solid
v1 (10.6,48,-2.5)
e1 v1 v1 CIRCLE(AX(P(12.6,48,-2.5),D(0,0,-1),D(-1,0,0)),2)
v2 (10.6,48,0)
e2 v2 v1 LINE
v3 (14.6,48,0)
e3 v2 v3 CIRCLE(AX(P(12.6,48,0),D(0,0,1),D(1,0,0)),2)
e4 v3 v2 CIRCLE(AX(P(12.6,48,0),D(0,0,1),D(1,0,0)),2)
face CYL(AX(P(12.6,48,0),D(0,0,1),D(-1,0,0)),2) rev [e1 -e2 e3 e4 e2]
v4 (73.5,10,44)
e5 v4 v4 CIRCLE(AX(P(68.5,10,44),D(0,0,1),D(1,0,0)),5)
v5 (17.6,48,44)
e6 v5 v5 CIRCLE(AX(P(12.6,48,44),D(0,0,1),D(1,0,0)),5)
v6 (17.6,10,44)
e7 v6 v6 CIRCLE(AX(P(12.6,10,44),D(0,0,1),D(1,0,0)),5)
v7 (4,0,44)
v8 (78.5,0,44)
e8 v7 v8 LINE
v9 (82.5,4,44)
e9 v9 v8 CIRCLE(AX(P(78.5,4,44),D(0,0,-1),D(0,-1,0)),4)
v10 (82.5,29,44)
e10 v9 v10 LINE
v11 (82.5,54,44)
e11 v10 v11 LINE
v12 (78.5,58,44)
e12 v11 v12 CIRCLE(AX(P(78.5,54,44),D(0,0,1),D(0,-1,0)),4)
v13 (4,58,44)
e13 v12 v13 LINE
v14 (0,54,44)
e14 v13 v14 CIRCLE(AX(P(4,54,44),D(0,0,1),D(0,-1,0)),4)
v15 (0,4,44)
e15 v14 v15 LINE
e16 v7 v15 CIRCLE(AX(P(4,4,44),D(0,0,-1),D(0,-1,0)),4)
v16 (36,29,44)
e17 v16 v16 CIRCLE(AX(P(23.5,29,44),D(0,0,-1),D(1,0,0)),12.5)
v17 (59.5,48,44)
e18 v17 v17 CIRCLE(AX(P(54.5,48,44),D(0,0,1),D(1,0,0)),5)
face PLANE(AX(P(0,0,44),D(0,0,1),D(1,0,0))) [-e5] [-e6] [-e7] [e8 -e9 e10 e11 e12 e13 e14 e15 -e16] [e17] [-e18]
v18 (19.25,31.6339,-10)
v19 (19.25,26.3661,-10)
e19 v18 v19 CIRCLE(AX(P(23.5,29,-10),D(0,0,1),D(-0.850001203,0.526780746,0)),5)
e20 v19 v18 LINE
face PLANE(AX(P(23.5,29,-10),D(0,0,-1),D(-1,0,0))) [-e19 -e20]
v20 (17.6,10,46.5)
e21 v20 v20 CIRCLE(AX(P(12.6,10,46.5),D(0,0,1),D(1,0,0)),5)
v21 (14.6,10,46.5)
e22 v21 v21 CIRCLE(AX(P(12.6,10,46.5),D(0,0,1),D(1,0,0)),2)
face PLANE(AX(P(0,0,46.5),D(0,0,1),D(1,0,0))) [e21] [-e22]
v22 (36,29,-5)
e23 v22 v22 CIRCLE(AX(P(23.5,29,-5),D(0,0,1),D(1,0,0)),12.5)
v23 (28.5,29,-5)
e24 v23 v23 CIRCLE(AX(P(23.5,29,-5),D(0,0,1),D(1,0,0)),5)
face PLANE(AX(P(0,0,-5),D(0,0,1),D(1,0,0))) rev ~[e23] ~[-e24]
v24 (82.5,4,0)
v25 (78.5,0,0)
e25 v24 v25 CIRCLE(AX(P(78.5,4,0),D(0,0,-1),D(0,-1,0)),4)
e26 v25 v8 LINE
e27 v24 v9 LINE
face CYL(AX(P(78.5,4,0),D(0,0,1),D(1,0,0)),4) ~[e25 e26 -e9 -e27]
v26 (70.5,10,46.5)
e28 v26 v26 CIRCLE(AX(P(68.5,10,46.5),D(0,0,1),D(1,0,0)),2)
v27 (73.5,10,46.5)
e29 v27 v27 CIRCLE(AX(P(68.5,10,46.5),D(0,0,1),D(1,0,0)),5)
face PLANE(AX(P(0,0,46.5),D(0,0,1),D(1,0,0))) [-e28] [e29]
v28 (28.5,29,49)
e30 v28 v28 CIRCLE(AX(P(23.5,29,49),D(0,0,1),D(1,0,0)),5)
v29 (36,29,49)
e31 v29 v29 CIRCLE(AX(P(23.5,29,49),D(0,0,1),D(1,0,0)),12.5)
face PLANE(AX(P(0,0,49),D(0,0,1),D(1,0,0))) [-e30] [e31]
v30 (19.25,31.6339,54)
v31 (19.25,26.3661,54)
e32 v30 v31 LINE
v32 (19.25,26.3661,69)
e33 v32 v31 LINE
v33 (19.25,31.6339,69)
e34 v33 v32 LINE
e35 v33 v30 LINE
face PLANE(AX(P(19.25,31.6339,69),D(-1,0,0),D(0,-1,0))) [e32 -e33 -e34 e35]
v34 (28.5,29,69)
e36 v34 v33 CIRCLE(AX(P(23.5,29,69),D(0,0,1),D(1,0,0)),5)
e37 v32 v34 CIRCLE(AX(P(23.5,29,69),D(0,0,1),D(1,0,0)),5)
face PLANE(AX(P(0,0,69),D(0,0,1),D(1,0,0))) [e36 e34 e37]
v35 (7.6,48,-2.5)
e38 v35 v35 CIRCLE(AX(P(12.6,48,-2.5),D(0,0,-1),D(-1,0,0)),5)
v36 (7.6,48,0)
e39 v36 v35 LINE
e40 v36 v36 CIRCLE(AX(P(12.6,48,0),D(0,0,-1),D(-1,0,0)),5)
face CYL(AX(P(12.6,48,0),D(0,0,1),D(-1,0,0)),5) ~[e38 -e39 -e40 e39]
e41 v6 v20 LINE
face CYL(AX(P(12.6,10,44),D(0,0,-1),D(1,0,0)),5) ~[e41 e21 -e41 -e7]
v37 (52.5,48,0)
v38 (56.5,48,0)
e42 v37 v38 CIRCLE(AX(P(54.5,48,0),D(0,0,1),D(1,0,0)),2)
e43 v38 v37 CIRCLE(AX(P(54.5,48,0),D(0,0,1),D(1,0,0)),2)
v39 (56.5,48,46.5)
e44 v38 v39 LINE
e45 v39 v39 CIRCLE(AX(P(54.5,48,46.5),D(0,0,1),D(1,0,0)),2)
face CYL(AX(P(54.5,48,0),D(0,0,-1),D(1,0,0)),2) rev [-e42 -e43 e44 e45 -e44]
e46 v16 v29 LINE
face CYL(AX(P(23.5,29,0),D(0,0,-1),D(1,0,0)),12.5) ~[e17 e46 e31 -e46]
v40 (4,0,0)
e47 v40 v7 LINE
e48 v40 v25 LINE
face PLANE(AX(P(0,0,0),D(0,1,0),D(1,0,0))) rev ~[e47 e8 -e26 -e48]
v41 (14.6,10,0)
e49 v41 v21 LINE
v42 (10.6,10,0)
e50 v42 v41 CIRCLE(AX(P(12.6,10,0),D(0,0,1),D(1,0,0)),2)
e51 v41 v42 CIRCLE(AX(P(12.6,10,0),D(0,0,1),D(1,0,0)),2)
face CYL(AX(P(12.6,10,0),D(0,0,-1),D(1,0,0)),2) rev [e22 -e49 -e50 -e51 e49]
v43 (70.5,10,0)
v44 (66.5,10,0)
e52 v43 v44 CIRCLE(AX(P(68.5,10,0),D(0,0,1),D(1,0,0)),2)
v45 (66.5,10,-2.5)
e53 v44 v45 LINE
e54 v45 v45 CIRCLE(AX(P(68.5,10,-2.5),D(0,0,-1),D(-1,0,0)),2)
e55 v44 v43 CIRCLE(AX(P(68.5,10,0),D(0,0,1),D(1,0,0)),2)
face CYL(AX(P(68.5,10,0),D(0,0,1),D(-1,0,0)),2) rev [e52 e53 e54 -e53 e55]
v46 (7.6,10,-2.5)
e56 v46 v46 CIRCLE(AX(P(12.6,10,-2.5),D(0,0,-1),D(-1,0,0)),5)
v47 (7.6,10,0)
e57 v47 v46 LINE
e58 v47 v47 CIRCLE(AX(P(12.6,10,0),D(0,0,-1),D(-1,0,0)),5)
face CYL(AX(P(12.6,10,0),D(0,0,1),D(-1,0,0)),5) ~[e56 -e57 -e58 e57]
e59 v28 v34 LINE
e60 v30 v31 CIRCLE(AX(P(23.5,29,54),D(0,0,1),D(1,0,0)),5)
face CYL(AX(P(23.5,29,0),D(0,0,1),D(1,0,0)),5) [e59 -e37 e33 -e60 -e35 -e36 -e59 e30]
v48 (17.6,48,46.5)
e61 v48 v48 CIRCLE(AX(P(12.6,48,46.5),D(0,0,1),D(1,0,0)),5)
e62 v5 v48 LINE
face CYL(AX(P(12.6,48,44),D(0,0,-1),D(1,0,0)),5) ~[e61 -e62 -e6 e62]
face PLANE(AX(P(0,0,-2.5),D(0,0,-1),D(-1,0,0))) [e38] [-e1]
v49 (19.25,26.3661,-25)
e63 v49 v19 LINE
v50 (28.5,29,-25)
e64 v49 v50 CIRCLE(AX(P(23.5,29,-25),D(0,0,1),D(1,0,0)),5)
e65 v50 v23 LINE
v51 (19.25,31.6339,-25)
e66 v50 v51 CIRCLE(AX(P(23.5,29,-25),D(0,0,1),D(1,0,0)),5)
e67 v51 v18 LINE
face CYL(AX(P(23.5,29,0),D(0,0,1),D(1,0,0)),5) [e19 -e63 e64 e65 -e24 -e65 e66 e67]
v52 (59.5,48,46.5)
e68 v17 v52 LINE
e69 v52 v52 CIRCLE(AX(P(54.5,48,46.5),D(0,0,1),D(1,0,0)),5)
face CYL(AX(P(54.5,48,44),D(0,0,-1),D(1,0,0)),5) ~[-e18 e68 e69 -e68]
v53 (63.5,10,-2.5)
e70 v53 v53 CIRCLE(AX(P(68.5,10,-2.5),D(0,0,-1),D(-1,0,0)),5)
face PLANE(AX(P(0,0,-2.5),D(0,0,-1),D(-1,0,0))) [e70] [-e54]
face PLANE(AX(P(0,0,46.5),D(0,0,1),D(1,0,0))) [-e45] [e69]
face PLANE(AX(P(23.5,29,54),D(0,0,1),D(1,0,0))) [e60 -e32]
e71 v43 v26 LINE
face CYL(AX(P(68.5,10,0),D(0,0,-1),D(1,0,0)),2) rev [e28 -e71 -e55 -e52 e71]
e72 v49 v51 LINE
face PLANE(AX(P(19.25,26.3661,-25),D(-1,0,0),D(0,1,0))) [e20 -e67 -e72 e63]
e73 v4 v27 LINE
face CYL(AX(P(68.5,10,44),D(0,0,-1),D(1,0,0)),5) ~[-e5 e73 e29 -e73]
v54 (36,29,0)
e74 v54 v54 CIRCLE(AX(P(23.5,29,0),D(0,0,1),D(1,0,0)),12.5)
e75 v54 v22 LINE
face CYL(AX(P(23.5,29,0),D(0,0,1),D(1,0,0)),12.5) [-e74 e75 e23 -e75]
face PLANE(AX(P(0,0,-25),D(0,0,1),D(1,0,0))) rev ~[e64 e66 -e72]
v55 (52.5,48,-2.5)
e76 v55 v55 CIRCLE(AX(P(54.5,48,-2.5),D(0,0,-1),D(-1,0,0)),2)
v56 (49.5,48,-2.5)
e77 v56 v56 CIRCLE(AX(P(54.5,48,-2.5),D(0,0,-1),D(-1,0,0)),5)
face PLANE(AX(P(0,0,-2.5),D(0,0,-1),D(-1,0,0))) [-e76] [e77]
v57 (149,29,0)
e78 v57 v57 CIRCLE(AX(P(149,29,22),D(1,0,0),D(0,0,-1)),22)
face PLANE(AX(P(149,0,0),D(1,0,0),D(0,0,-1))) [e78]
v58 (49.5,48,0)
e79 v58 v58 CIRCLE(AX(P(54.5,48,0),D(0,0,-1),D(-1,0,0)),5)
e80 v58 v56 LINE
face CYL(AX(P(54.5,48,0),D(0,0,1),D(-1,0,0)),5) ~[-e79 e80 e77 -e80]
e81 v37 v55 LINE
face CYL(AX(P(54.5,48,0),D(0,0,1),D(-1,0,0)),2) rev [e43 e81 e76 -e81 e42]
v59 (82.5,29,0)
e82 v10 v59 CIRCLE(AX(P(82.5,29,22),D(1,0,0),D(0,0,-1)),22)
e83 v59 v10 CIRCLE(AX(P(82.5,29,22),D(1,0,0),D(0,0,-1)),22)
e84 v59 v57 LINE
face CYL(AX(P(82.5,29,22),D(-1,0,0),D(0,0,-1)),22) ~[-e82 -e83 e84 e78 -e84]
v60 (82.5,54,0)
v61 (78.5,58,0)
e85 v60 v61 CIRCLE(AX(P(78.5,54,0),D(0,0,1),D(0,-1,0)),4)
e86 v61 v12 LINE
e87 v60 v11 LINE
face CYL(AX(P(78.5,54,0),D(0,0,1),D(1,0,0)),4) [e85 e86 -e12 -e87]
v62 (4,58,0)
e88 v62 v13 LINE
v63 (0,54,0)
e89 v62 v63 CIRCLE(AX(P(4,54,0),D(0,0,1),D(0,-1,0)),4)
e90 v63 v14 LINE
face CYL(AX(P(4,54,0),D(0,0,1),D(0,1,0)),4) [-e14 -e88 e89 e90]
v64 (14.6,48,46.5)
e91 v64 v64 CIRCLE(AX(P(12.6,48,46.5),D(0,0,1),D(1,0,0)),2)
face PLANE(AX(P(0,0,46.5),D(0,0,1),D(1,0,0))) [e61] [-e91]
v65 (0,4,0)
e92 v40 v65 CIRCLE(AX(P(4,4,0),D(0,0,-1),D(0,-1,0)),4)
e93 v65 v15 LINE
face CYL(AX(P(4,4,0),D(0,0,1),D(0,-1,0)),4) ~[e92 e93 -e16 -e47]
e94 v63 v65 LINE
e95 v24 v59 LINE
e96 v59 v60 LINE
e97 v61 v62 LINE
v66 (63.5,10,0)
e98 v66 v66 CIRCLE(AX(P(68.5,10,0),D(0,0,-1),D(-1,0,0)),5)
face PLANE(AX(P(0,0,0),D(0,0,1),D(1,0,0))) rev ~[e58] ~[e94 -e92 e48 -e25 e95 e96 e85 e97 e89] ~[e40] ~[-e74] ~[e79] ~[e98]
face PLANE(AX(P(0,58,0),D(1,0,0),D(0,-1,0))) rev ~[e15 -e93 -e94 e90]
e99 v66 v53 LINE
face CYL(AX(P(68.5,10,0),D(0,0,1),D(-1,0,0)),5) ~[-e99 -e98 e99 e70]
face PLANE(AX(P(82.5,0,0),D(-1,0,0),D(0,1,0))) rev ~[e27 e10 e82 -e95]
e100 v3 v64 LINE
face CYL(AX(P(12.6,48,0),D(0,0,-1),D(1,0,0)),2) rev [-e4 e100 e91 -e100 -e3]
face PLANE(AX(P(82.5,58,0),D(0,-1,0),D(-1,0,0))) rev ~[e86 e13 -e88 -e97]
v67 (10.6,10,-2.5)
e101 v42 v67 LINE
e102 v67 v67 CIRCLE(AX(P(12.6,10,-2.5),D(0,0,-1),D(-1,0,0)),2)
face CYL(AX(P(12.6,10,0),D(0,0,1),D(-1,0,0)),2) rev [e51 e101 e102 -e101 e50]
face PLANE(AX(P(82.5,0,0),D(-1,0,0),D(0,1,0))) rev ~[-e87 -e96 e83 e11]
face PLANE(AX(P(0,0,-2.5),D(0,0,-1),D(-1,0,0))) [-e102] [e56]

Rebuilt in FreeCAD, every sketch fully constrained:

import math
import FreeCAD as App
import Part
import Sketcher

V = App.Vector
Q = App.Units.Quantity


def edges_at(feature, points):
    """Names of the edges that pass closest to the given points."""
    edges = feature.Shape.Edges
    near = lambda p: min(range(len(edges)), key=lambda i: edges[i].distToShape(Part.Vertex(*p))[0])
    return sorted({f"Edge{near(p) + 1}" for p in points})


def add_polygon(sketch, points):
    """Adds a closed chain of lines whose ends are joined by coincident constraints."""
    first, n = sketch.GeometryCount, len(points)
    for a, b in zip(points, points[1:] + points[:1]):
        sketch.addGeometry(Part.LineSegment(App.Vector(*a, 0), App.Vector(*b, 0)), False)
    for i in range(n):
        sketch.addConstraint(Sketcher.Constraint("Coincident", first + i, 2, first + (i + 1) % n, 1))

doc = App.newDocument("Part")
body = doc.addObject("PartDesign::Body", "Body")

# Sketch on XY plane
sketch1 = body.newObject("Sketcher::SketchObject", "Sketch")
sketch1.AttachmentSupport = (doc.getObject("XY_Plane"), [""])
sketch1.MapMode = "FlatFace"
add_polygon(sketch1, [(0, 58), (0, 0), (82.5, 0), (82.5, 58)])  # lines 0-3
sketch1.addGeometry(Part.Circle(V(12.6, 10, 0), V(0, 0, 1), 2), False)  # 4
sketch1.addGeometry(Part.Circle(V(68.5, 10, 0), V(0, 0, 1), 2), False)  # 5
sketch1.addGeometry(Part.Circle(V(12.6, 48, 0), V(0, 0, 1), 2), False)  # 6
sketch1.addGeometry(Part.Circle(V(54.5, 48, 0), V(0, 0, 1), 2), False)  # 7
sketch1.addConstraint([
    Sketcher.Constraint("Vertical", 0),
    Sketcher.Constraint("Horizontal", 1),
    Sketcher.Constraint("Vertical", 2),
    Sketcher.Constraint("Horizontal", 3),
    Sketcher.Constraint("Coincident", 0, 2, -1, 1),
    Sketcher.Constraint("Equal", 4, 5),
    Sketcher.Constraint("Equal", 5, 6),
    Sketcher.Constraint("Equal", 6, 7),
    Sketcher.Constraint("Horizontal", 4, 3, 5, 3),
    Sketcher.Constraint("Horizontal", 6, 3, 7, 3),
    Sketcher.Constraint("Vertical", 4, 3, 6, 3),
    Sketcher.Constraint("Diameter", 4, Q("4 mm")),
    Sketcher.Constraint("DistanceY", 0, 2, 0, 1, Q("58 mm")),
    Sketcher.Constraint("DistanceX", 1, 1, 1, 2, Q("82.5 mm")),
    Sketcher.Constraint("DistanceY", -1, 1, 4, 3, Q("10 mm")),
    Sketcher.Constraint("DistanceY", 4, 3, 6, 3, Q("38 mm")),
    Sketcher.Constraint("DistanceX", -1, 1, 4, 3, Q("12.6 mm")),
    Sketcher.Constraint("DistanceX", 4, 3, 5, 3, Q("55.9 mm")),
    Sketcher.Constraint("DistanceX", 6, 3, 7, 3, Q("41.9 mm")),
])
pad1 = body.newObject("PartDesign::Pad", "Pad")
pad1.Profile = sketch1
pad1.Length = 44

# Sketch on XY plane
sketch2 = body.newObject("Sketcher::SketchObject", "Sketch001")
sketch2.AttachmentSupport = (doc.getObject("XY_Plane"), [""])
sketch2.MapMode = "FlatFace"
sketch2.addGeometry([
    Part.Circle(V(24, 29, 0), V(0, 0, 1), 12),
    Part.Circle(V(24, 29, 0), V(0, 0, 1), 5),
], False)
sketch2.addConstraint([
    Sketcher.Constraint("Coincident", 1, 3, 0, 3),
    Sketcher.Constraint("Diameter", 0, Q("25 mm")),
    Sketcher.Constraint("Diameter", 1, Q("10 mm")),
    Sketcher.Constraint("DistanceY", -1, 1, 0, 3, Q("29 mm")),
    Sketcher.Constraint("DistanceX", -1, 1, 0, 3, Q("23.5 mm")),
])
pad2 = body.newObject("PartDesign::Pad", "Pad001")
pad2.Profile = sketch2
pad2.Type = "TwoLengths"
pad2.Length = 49
pad2.Length2 = 5

# Sketch on XY plane
sketch3 = body.newObject("Sketcher::SketchObject", "Sketch002")
sketch3.AttachmentSupport = (doc.getObject("XY_Plane"), [""])
sketch3.MapMode = "FlatFace"
sketch3.addGeometry(Part.Circle(V(24, 29, 0), V(0, 0, 1), 5), False)
sketch3.addConstraint([
    Sketcher.Constraint("Diameter", 0, Q("10 mm")),
    Sketcher.Constraint("DistanceY", -1, 1, 0, 3, Q("29 mm")),
    Sketcher.Constraint("DistanceX", -1, 1, 0, 3, Q("23.5 mm")),
])
pad3 = body.newObject("PartDesign::Pad", "Pad002")
pad3.Profile = sketch3
pad3.Type = "TwoLengths"
pad3.Length = 25
pad3.Length2 = 69
pad3.Reversed = True

# Sketch on XY plane
sketch4 = body.newObject("Sketcher::SketchObject", "Sketch003")
sketch4.AttachmentSupport = (doc.getObject("XY_Plane"), [""])
sketch4.MapMode = "FlatFace"
sketch4.AttachmentOffset = App.Placement(V(0, 0, 44), App.Rotation())
sketch4.addGeometry([
    Part.Circle(V(12.6, 48, 0), V(0, 0, 1), 5),  # 0
    Part.Circle(V(12.6, 48, 0), V(0, 0, 1), 2),  # 1
    Part.Circle(V(54.5, 48, 0), V(0, 0, 1), 5),  # 2
    Part.Circle(V(54.5, 48, 0), V(0, 0, 1), 2),  # 3
    Part.Circle(V(68.5, 10, 0), V(0, 0, 1), 5),  # 4
    Part.Circle(V(68.5, 10, 0), V(0, 0, 1), 2),  # 5
    Part.Circle(V(12.6, 10, 0), V(0, 0, 1), 5),  # 6
    Part.Circle(V(12.6, 10, 0), V(0, 0, 1), 2),  # 7
], False)
sketch4.addConstraint([
    Sketcher.Constraint("Coincident", 1, 3, 0, 3),
    Sketcher.Constraint("Coincident", 3, 3, 2, 3),
    Sketcher.Constraint("Coincident", 5, 3, 4, 3),
    Sketcher.Constraint("Coincident", 7, 3, 6, 3),
    Sketcher.Constraint("Equal", 0, 2),
    Sketcher.Constraint("Equal", 1, 3),
    Sketcher.Constraint("Equal", 2, 4),
    Sketcher.Constraint("Equal", 3, 5),
    Sketcher.Constraint("Equal", 4, 6),
    Sketcher.Constraint("Equal", 5, 7),
    Sketcher.Constraint("Horizontal", 1, 3, 2, 3),
    Sketcher.Constraint("Horizontal", 5, 3, 6, 3),
    Sketcher.Constraint("Vertical", 1, 3, 6, 3),
    Sketcher.Constraint("Diameter", 0, Q("10 mm")),
    Sketcher.Constraint("Diameter", 1, Q("4 mm")),
    Sketcher.Constraint("DistanceY", -1, 1, 4, 3, Q("10 mm")),
    Sketcher.Constraint("DistanceY", -1, 1, 0, 3, Q("48 mm")),
    Sketcher.Constraint("DistanceX", 2, 3, 4, 3, Q("14 mm")),
    Sketcher.Constraint("DistanceX", -1, 1, 0, 3, Q("12.6 mm")),
    Sketcher.Constraint("DistanceX", -1, 1, 2, 3, Q("54.5 mm")),
])
pad4 = body.newObject("PartDesign::Pad", "Pad003")
pad4.Profile = sketch4
pad4.Length = 2.5

# Sketch on XY plane
sketch5 = body.newObject("Sketcher::SketchObject", "Sketch004")
sketch5.AttachmentSupport = (doc.getObject("XY_Plane"), [""])
sketch5.MapMode = "FlatFace"
sketch5.addGeometry([
    Part.Circle(V(12.6, 48, 0), V(0, 0, 1), 5),  # 0
    Part.Circle(V(12.6, 48, 0), V(0, 0, 1), 2),  # 1
    Part.Circle(V(12.6, 10, 0), V(0, 0, 1), 5),  # 2
    Part.Circle(V(12.6, 10, 0), V(0, 0, 1), 2),  # 3
    Part.Circle(V(54.5, 48, 0), V(0, 0, 1), 5),  # 4
    Part.Circle(V(54.5, 48, 0), V(0, 0, 1), 2),  # 5
    Part.Circle(V(68.5, 10, 0), V(0, 0, 1), 5),  # 6
    Part.Circle(V(68.5, 10, 0), V(0, 0, 1), 2),  # 7
], False)
sketch5.addConstraint([
    Sketcher.Constraint("Coincident", 1, 3, 0, 3),
    Sketcher.Constraint("Coincident", 3, 3, 2, 3),
    Sketcher.Constraint("Coincident", 5, 3, 4, 3),
    Sketcher.Constraint("Coincident", 7, 3, 6, 3),
    Sketcher.Constraint("Equal", 0, 2),
    Sketcher.Constraint("Equal", 1, 3),
    Sketcher.Constraint("Equal", 2, 4),
    Sketcher.Constraint("Equal", 3, 5),
    Sketcher.Constraint("Equal", 4, 6),
    Sketcher.Constraint("Equal", 5, 7),
    Sketcher.Constraint("Horizontal", 1, 3, 4, 3),
    Sketcher.Constraint("Horizontal", 3, 3, 6, 3),
    Sketcher.Constraint("Vertical", 1, 3, 2, 3),
    Sketcher.Constraint("Diameter", 0, Q("10 mm")),
    Sketcher.Constraint("Diameter", 1, Q("4 mm")),
    Sketcher.Constraint("DistanceY", -1, 1, 0, 3, Q("48 mm")),
    Sketcher.Constraint("DistanceY", -1, 1, 2, 3, Q("10 mm")),
    Sketcher.Constraint("DistanceX", 4, 3, 6, 3, Q("14 mm")),
    Sketcher.Constraint("DistanceX", -1, 1, 0, 3, Q("12.6 mm")),
    Sketcher.Constraint("DistanceX", -1, 1, 4, 3, Q("54.5 mm")),
])
pad5 = body.newObject("PartDesign::Pad", "Pad004")
pad5.Profile = sketch5
pad5.Length = 2.5
pad5.Reversed = True

# Sketch on YZ plane
sketch6 = body.newObject("Sketcher::SketchObject", "Sketch005")
sketch6.AttachmentSupport = (doc.getObject("YZ_Plane"), [""])
sketch6.MapMode = "FlatFace"
sketch6.AttachmentOffset = App.Placement(V(0, 0, 82.5), App.Rotation())
sketch6.addGeometry(Part.Circle(V(29, 22, 0), V(0, 0, 1), 22), False)
sketch6.addConstraint([
    Sketcher.Constraint("Diameter", 0, Q("44 mm")),
    Sketcher.Constraint("DistanceX", -1, 1, 0, 3, Q("29 mm")),
    Sketcher.Constraint("DistanceY", -1, 1, 0, 3, Q("22 mm")),
])
pad6 = body.newObject("PartDesign::Pad", "Pad005")
pad6.Profile = sketch6
pad6.Length = 66.5

# Sketch on XY plane
sketch7 = body.newObject("Sketcher::SketchObject", "Sketch006")
sketch7.AttachmentSupport = (doc.getObject("XY_Plane"), [""])
sketch7.MapMode = "FlatFace"
sketch7.AttachmentOffset = App.Placement(V(0, 0, -25), App.Rotation())
sketch7.addGeometry([
    Part.ArcOfCircle(Part.Circle(V(24, 29, 0), V(0, 0, 1), 5), math.radians(148), math.radians(212)),
    Part.LineSegment(V(19, 26, 0), V(19, 32, 0)),
], False)
sketch7.addConstraint([
    Sketcher.Constraint("Coincident", 0, 1, 1, 2),
    Sketcher.Constraint("Coincident", 1, 1, 0, 2),
    Sketcher.Constraint("Vertical", 1),
    Sketcher.Constraint("Radius", 0, Q("5 mm")),
    Sketcher.Constraint("DistanceX", 0, 1, 0, 3, Q("4.25 mm")),
    Sketcher.Constraint("DistanceY", -1, 1, 0, 3, Q("29 mm")),
    Sketcher.Constraint("DistanceX", -1, 1, 0, 3, Q("23.5 mm")),
])
pocket1 = body.newObject("PartDesign::Pocket", "Pocket")
pocket1.Profile = sketch7
pocket1.Length = 15
pocket1.Reversed = True

# Sketch on XY plane
sketch8 = body.newObject("Sketcher::SketchObject", "Sketch007")
sketch8.AttachmentSupport = (doc.getObject("XY_Plane"), [""])
sketch8.MapMode = "FlatFace"
sketch8.AttachmentOffset = App.Placement(V(0, 0, 69), App.Rotation())
sketch8.addGeometry([
    Part.LineSegment(V(19, 26, 0), V(19, 32, 0)),
    Part.ArcOfCircle(Part.Circle(V(24, 29, 0), V(0, 0, 1), 5), math.radians(148), math.radians(212)),
], False)
sketch8.addConstraint([
    Sketcher.Constraint("Coincident", 0, 1, 1, 2),
    Sketcher.Constraint("Coincident", 1, 1, 0, 2),
    Sketcher.Constraint("Vertical", 0),
    Sketcher.Constraint("Radius", 1, Q("5 mm")),
    Sketcher.Constraint("DistanceX", 0, 1, 1, 3, Q("4.25 mm")),
    Sketcher.Constraint("DistanceY", -1, 1, 1, 3, Q("29 mm")),
    Sketcher.Constraint("DistanceX", -1, 1, 1, 3, Q("23.5 mm")),
])
pocket2 = body.newObject("PartDesign::Pocket", "Pocket001")
pocket2.Profile = sketch8
pocket2.Length = 15
doc.recompute()

fillet = body.newObject("PartDesign::Fillet", "Fillet")
fillet.Base = (pocket2, edges_at(pocket2, [
    (82.5, 58, 22),
    (0, 58, 22),
    (82.5, 0, 22),
    (0, 0, 22),
]))
fillet.Radius = 4

doc.recompute()
